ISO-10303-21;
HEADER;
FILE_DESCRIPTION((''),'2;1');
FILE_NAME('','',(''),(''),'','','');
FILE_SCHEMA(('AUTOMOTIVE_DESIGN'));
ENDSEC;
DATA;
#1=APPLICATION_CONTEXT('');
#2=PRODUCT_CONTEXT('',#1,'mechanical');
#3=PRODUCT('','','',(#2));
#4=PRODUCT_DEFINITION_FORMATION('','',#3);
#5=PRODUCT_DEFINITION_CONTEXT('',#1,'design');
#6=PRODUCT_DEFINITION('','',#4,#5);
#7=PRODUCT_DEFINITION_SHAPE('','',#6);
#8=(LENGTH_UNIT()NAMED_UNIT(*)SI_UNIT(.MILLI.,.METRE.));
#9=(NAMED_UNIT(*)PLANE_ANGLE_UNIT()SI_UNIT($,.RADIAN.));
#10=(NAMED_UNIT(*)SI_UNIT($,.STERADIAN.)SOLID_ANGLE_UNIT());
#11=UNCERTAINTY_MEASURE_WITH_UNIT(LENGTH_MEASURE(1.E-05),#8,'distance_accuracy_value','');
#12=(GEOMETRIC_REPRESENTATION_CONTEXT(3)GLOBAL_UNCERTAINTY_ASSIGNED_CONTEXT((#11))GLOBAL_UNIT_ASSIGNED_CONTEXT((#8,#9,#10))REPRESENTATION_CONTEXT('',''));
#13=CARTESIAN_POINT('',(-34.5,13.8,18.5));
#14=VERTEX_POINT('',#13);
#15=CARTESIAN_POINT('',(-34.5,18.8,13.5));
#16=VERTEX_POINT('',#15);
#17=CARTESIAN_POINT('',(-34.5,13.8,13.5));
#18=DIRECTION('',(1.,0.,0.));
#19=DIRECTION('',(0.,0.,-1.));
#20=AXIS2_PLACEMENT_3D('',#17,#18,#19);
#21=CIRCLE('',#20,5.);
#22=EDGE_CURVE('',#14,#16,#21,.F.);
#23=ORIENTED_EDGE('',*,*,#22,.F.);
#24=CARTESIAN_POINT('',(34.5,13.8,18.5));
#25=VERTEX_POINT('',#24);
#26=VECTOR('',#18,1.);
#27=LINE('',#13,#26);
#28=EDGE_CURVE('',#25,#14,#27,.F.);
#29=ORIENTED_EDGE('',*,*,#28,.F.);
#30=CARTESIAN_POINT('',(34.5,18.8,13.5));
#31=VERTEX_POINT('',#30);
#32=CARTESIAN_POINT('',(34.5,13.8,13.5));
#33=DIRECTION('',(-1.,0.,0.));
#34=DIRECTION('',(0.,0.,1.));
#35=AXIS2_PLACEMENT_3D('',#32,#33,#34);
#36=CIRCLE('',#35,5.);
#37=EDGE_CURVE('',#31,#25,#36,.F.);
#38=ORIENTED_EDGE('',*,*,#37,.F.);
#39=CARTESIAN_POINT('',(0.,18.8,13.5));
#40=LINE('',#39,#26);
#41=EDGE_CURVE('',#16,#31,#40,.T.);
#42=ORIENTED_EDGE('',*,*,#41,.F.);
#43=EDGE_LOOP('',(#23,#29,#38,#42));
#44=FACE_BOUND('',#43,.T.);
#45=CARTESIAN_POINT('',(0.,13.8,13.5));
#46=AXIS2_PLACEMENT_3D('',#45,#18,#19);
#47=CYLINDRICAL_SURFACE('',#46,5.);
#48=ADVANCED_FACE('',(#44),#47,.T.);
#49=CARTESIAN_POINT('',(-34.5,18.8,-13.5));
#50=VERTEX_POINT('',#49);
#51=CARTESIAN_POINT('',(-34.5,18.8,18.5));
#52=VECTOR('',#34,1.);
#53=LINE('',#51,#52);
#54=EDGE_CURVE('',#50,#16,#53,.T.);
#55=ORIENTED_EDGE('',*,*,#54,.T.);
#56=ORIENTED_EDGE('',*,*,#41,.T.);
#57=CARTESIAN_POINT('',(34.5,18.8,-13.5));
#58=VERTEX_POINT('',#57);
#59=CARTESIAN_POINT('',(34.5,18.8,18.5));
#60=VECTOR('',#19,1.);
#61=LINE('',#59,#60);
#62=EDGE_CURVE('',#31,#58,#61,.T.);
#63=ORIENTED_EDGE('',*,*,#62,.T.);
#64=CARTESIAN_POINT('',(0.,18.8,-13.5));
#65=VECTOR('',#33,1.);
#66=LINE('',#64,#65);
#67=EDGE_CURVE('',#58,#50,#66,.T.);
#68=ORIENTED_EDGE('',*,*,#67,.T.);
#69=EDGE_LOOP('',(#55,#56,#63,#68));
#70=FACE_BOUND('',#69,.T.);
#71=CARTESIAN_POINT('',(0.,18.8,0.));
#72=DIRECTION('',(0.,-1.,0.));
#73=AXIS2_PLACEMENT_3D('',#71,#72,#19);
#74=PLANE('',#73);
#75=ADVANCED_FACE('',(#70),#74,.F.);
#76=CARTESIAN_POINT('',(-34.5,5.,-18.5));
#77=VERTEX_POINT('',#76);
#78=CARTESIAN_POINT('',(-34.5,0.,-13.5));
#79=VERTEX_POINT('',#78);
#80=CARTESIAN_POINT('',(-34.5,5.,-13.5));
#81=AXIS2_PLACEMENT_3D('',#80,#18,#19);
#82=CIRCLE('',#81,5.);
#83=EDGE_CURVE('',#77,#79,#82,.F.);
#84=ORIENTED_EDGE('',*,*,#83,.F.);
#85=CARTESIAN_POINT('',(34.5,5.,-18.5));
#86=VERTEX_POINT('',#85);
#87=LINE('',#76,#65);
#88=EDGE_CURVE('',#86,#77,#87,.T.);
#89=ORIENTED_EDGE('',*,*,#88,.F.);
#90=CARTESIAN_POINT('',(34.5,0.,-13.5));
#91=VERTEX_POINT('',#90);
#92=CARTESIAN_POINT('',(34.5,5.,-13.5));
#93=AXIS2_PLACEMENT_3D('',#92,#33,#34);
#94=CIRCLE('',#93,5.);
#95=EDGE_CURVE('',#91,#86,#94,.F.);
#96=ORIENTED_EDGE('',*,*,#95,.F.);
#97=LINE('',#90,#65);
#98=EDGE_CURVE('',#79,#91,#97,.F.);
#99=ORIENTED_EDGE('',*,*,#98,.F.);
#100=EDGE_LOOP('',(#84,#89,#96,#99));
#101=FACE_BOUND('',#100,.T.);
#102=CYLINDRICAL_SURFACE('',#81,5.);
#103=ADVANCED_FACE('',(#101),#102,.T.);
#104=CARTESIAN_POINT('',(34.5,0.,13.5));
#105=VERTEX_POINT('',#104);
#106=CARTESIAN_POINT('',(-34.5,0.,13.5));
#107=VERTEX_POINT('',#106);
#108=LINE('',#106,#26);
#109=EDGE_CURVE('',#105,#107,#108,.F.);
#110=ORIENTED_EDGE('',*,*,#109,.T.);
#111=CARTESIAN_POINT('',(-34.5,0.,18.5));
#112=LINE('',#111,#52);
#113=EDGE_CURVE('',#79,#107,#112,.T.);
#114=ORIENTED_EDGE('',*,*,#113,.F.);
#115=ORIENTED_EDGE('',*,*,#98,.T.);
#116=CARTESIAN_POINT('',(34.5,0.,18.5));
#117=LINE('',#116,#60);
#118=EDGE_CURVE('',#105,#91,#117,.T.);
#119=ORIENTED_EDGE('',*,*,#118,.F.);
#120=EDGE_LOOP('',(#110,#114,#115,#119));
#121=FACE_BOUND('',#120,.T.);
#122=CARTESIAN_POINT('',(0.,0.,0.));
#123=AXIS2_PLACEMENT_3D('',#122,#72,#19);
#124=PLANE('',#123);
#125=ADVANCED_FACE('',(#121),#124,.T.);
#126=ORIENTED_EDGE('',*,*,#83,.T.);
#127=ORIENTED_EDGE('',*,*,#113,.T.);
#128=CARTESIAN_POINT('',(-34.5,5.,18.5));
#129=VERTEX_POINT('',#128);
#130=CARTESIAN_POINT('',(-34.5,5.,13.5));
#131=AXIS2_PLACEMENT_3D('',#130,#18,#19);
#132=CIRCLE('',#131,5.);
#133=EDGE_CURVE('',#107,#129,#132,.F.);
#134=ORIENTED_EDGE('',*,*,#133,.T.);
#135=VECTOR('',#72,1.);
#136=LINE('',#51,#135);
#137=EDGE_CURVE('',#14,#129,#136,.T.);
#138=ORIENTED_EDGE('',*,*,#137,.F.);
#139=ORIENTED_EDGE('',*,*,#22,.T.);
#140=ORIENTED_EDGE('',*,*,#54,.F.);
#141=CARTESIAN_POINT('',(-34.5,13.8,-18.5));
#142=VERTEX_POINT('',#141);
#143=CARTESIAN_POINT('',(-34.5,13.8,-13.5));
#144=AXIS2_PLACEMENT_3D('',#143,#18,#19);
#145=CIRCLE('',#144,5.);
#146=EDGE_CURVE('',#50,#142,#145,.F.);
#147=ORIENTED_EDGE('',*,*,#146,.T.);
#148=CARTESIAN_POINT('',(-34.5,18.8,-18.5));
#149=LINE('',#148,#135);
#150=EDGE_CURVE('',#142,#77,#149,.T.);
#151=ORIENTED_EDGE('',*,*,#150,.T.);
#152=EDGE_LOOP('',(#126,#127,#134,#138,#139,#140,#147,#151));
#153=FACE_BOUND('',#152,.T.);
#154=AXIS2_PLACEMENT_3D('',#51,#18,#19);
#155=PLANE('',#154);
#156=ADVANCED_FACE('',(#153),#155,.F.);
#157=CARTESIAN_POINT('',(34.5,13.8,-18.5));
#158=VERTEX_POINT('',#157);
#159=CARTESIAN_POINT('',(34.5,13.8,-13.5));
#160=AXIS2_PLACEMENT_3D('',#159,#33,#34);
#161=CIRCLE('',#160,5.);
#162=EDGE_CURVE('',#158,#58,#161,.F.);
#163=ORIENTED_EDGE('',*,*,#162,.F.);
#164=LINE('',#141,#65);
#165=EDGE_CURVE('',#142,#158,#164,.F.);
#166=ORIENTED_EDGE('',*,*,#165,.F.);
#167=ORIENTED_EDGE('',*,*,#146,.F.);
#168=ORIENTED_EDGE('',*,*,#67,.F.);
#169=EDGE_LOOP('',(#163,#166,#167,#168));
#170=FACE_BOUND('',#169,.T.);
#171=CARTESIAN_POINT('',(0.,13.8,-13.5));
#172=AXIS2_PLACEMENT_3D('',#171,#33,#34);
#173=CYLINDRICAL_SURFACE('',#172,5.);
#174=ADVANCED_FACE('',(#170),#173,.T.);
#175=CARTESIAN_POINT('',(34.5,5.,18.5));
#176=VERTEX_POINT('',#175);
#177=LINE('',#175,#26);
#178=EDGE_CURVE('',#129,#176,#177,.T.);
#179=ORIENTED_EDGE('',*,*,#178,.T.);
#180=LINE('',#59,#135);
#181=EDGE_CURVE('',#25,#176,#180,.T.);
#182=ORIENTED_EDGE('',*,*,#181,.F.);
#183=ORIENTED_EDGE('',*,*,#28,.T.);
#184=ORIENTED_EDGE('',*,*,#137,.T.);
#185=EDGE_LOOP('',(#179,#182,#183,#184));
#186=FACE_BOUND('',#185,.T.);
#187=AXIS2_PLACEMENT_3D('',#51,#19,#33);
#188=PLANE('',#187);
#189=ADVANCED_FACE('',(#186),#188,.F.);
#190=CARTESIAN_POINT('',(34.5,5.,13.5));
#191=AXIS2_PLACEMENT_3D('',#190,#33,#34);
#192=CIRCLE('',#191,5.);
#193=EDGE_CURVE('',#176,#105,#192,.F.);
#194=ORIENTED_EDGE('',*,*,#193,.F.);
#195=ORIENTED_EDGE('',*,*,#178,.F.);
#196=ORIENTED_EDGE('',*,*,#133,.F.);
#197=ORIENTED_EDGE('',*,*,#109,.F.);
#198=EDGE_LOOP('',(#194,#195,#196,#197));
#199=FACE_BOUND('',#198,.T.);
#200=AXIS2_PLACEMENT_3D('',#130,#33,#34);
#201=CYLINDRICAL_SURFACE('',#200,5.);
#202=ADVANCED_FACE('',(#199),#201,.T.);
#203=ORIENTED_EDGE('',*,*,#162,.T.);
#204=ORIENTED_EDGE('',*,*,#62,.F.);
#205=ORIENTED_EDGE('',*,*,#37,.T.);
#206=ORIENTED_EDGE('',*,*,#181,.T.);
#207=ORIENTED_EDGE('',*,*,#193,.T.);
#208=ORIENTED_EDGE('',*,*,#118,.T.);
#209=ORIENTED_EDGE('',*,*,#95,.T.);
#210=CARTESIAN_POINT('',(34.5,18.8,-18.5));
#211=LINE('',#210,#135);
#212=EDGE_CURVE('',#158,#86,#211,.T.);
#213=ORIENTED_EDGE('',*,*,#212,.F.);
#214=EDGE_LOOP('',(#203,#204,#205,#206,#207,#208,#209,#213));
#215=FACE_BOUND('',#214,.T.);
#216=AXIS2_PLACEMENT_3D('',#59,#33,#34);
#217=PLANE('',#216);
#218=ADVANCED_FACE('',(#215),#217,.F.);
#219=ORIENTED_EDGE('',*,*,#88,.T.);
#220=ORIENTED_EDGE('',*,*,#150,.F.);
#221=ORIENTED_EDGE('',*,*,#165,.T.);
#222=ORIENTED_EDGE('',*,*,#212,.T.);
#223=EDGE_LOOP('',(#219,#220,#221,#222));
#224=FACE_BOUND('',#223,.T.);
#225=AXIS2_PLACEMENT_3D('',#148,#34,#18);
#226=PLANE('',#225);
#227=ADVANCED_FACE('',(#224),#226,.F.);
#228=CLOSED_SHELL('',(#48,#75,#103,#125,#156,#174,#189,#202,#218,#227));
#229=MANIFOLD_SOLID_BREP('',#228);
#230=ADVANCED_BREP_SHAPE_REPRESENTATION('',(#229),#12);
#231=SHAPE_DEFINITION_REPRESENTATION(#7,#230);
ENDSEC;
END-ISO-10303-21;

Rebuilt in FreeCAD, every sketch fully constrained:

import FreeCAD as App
import Part
import Sketcher
from FreeCAD import Vector
Q = App.Units.Quantity


def edges_at(feature, points):
    """Names of the edges that pass closest to the given points."""
    edges = feature.Shape.Edges
    near = lambda p: min(range(len(edges)), key=lambda i: edges[i].distToShape(Part.Vertex(*p))[0])
    return sorted({f"Edge{near(p) + 1}" for p in points})


def add_polygon(sketch, points):
    """Adds a closed chain of lines whose ends are joined by coincident constraints."""
    first, n = sketch.GeometryCount, len(points)
    for a, b in zip(points, points[1:] + points[:1]):
        sketch.addGeometry(Part.LineSegment(App.Vector(*a, 0), App.Vector(*b, 0)), False)
    for i in range(n):
        sketch.addConstraint(Sketcher.Constraint("Coincident", first + i, 2, first + (i + 1) % n, 1))

doc = App.newDocument("Part")
body = doc.addObject("PartDesign::Body", "Body")

# Sketch on XZ plane
sketch1 = doc.addObject("Sketcher::SketchObject", "Sketch")
body.addObject(sketch1)
sketch1.AttachmentSupport = (doc.XZ_Plane, [""])
sketch1.MapMode = "FlatFace"
add_polygon(sketch1, [(-34, -18), (-34, 18), (34, 18), (34, -18)])  # lines 0-3
sketch1.addConstraint(Sketcher.Constraint("Vertical", 0))
sketch1.addConstraint(Sketcher.Constraint("Horizontal", 1))
sketch1.addConstraint(Sketcher.Constraint("Vertical", 2))
sketch1.addConstraint(Sketcher.Constraint("Horizontal", 3))
sketch1.addConstraint(Sketcher.Constraint("Symmetric", 0, 2, 2, 2, -1, 1))
sketch1.addConstraint(Sketcher.Constraint("DistanceX", 1, 1, 1, 2, Q("69 mm")))
sketch1.addConstraint(Sketcher.Constraint("DistanceY", 0, 1, 0, 2, Q("37 mm")))
pad1 = doc.addObject("PartDesign::Pad", "Pad")
body.addObject(pad1)
pad1.Profile = sketch1
pad1.Length = 18.8
pad1.Reversed = True
doc.recompute()

fillet = doc.addObject("PartDesign::Fillet", "Fillet")
body.addObject(fillet)
fillet.Base = (pad1, edges_at(pad1, [
    (0, 18.8, 18.5),
    (0, 0, 18.5),
    (0, 0, -18.5),
    (0, 18.8, -18.5),
]))
fillet.Radius = 5

doc.recompute()
